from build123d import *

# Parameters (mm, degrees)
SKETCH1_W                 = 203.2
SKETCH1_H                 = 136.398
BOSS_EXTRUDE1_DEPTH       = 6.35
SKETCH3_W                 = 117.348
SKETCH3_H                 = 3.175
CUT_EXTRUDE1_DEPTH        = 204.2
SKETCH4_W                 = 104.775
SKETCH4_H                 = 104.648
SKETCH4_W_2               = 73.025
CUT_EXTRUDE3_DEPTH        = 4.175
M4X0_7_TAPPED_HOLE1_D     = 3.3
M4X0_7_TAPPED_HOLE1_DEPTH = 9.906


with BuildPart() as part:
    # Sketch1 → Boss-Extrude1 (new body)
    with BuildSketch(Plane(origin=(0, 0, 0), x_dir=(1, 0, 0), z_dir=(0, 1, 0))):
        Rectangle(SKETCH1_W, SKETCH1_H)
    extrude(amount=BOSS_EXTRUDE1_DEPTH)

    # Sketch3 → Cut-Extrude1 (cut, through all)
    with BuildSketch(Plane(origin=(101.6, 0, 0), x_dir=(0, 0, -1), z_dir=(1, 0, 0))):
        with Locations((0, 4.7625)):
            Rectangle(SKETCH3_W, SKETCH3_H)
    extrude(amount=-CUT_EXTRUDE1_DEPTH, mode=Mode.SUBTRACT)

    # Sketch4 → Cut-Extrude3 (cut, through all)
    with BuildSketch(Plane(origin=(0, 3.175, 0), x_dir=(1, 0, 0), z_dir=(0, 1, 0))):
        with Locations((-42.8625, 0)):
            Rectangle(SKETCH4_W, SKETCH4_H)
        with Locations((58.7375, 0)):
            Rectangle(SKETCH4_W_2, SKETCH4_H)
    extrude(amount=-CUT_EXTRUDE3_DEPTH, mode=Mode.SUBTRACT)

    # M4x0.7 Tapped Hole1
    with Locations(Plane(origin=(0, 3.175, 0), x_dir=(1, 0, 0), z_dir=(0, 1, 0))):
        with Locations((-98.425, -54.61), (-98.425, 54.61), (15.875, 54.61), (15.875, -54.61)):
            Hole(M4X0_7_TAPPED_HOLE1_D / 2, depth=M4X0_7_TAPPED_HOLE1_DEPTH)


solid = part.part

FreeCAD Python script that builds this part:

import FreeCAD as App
import Part
import Sketcher
from FreeCAD import Vector
Q = App.Units.Quantity


def add_polygon(sketch, points):
    """Adds a closed chain of lines whose ends are joined by coincident constraints."""
    first, n = sketch.GeometryCount, len(points)
    for a, b in zip(points, points[1:] + points[:1]):
        sketch.addGeometry(Part.LineSegment(App.Vector(*a, 0), App.Vector(*b, 0)), False)
    for i in range(n):
        sketch.addConstraint(Sketcher.Constraint("Coincident", first + i, 2, first + (i + 1) % n, 1))

doc = App.newDocument("Part")
params = doc.addObject("Spreadsheet::Sheet", "Params")
for row, (alias, value) in enumerate([
    ("sketch1_width", "8 in"),
    ("sketch1_height", "5.37 in"),
    ("pad1_length", "0.25 in"),
    ("sketch2_height", "4.62 in"),
    ("sketch2_width", "0.125 in"),
    ("sketch3_height", "4.12 in"),
    ("sketch3_width", "4.125 in"),
    ("hole_diameter", "3.3 mm"),
    ("hole_depth", "0.39 in"),
], start=1):
    params.set(f"A{row}", alias)
    params.set(f"B{row}", "=" + value)
    params.setAlias(f"B{row}", alias)

body = doc.addObject("PartDesign::Body", "Body")

# Sketch on XZ plane
sketch1 = doc.addObject("Sketcher::SketchObject", "Sketch")
body.addObject(sketch1)
sketch1.AttachmentSupport = (doc.XZ_Plane, [""])
sketch1.MapMode = "FlatFace"
add_polygon(sketch1, [(-102, -68), (-102, 68), (102, 68), (102, -68)])  # lines 0-3
sketch1.addConstraint([
    Sketcher.Constraint("Vertical", 0),
    Sketcher.Constraint("Horizontal", 1),
    Sketcher.Constraint("Vertical", 2),
    Sketcher.Constraint("Horizontal", 3),
    Sketcher.Constraint("Symmetric", 0, 2, 2, 2, -1, 1),
    Sketcher.Constraint("DistanceX", 1, 1, 1, 2, Q("8 in")),
    Sketcher.Constraint("DistanceY", 0, 1, 0, 2, Q("5.37 in")),
])
sketch1.setExpression("Constraints[9]", "Params.sketch1_width")
sketch1.setExpression("Constraints[10]", "Params.sketch1_height")
pad1 = doc.addObject("PartDesign::Pad", "Pad")
body.addObject(pad1)
pad1.Profile = sketch1
pad1.setExpression("Length", "Params.pad1_length")
pad1.Reversed = True

# Sketch on YZ plane
sketch2 = doc.addObject("Sketcher::SketchObject", "Sketch001")
body.addObject(sketch2)
sketch2.AttachmentSupport = (doc.YZ_Plane, [""])
sketch2.MapMode = "FlatFace"
sketch2.AttachmentOffset = App.Placement(Vector(0, 0, 4 * 25.4), App.Rotation())
add_polygon(sketch2, [(6.3, 58.7), (3.2, 58.7), (3.2, -58.7), (6.3, -58.7)])  # lines 0-3
sketch2.addConstraint([
    Sketcher.Constraint("Horizontal", 0),
    Sketcher.Constraint("Vertical", 1),
    Sketcher.Constraint("Horizontal", 2),
    Sketcher.Constraint("Vertical", 3),
    Sketcher.Constraint("DistanceY", 1, 2, 1, 1, Q("4.62 in")),
    Sketcher.Constraint("DistanceX", 0, 2, 0, 1, Q("0.125 in")),
    Sketcher.Constraint("DistanceY", -1, 1, 0, 2, Q("2.31 in")),
    Sketcher.Constraint("DistanceX", -1, 1, 2, 2, Q("0.25 in")),
])
sketch2.setExpression("Constraints[8]", "Params.sketch2_height")
sketch2.setExpression("Constraints[9]", "Params.sketch2_width")
pocket1 = doc.addObject("PartDesign::Pocket", "Pocket")
body.addObject(pocket1)
pocket1.Profile = sketch2
pocket1.Type = "ThroughAll"

# Sketch on XZ plane
sketch3 = doc.addObject("Sketcher::SketchObject", "Sketch002")
body.addObject(sketch3)
sketch3.AttachmentSupport = (doc.XZ_Plane, [""])
sketch3.MapMode = "FlatFace"
sketch3.AttachmentOffset = App.Placement(Vector(0, 0, -0.125 * 25.4), App.Rotation())
add_polygon(sketch3, [(-95, -52), (-95, 52), (10, 52), (10, -52)])  # lines 0-3
add_polygon(sketch3, [(22, -52), (22, 52), (95, 52), (95, -52)])  # lines 4-7
sketch3.addConstraint([
    Sketcher.Constraint("Vertical", 0),
    Sketcher.Constraint("Horizontal", 1),
    Sketcher.Constraint("Vertical", 2),
    Sketcher.Constraint("Horizontal", 3),
    Sketcher.Constraint("Vertical", 4),
    Sketcher.Constraint("Horizontal", 5),
    Sketcher.Constraint("Vertical", 6),
    Sketcher.Constraint("Horizontal", 7),
    Sketcher.Constraint("Symmetric", 3, 2, 5, 2, -1, 1),
    Sketcher.Constraint("Horizontal", 1, 2, 4, 2),
    Sketcher.Constraint("Horizontal", 3, 2, 6, 2),
    Sketcher.Constraint("DistanceY", 0, 1, 0, 2, Q("4.12 in")),
    Sketcher.Constraint("DistanceX", 1, 2, 4, 2, Q("0.5 in")),
    Sketcher.Constraint("DistanceX", 0, 2, 5, 2, Q("7.5 in")),
    Sketcher.Constraint("DistanceX", 1, 1, 1, 2, Q("4.125 in")),
])
sketch3.setExpression("Constraints[19]", "Params.sketch3_height")
sketch3.setExpression("Constraints[22]", "Params.sketch3_width")
pocket2 = doc.addObject("PartDesign::Pocket", "Pocket001")
body.addObject(pocket2)
pocket2.Profile = sketch3
pocket2.Type = "ThroughAll"
pocket2.Reversed = True

# Sketch on XZ plane
sketch4 = doc.addObject("Sketcher::SketchObject", "Sketch003")
body.addObject(sketch4)
sketch4.AttachmentSupport = (doc.XZ_Plane, [""])
sketch4.MapMode = "FlatFace"
sketch4.AttachmentOffset = App.Placement(Vector(0, 0, -0.125 * 25.4), App.Rotation())
sketch4.addGeometry([
    Part.Circle(Vector(-98.4, 54.6, 0), Vector(0, 0, 1), 1.6),
    Part.Circle(Vector(-98.4, -54.6, 0), Vector(0, 0, 1), 1.6),
    Part.Circle(Vector(15.9, -54.6, 0), Vector(0, 0, 1), 1.6),
    Part.Circle(Vector(15.9, 54.6, 0), Vector(0, 0, 1), 1.6),
], False)
sketch4.addConstraint([
    Sketcher.Constraint("Equal", 0, 1),
    Sketcher.Constraint("Equal", 1, 2),
    Sketcher.Constraint("Equal", 2, 3),
    Sketcher.Constraint("Symmetric", 0, 3, 1, 3, -1),
    Sketcher.Constraint("Symmetric", 2, 3, 3, 3, -1),
    Sketcher.Constraint("Horizontal", 1, 3, 2, 3),
    Sketcher.Constraint("DistanceY", 1, 3, 0, 3, Q("4.3 in")),
    Sketcher.Constraint("DistanceX", 1, 3, 2, 3, Q("4.5 in")),
    Sketcher.Constraint("Diameter", 0, Q("3.3 mm")),
    Sketcher.Constraint("DistanceX", 0, 3, -1, 1, Q("3.875 in")),
])
doc.recompute()
hole = doc.addObject("PartDesign::Hole", "Hole")
body.addObject(hole)
hole.Profile = sketch4
hole.ThreadType = "None"
hole.setExpression("Diameter", "Params.hole_diameter")
hole.DepthType = "Dimension"
hole.setExpression("Depth", "Params.hole_depth")
hole.DrillPoint = "Flat"
hole.Reversed = True

doc.recompute()
